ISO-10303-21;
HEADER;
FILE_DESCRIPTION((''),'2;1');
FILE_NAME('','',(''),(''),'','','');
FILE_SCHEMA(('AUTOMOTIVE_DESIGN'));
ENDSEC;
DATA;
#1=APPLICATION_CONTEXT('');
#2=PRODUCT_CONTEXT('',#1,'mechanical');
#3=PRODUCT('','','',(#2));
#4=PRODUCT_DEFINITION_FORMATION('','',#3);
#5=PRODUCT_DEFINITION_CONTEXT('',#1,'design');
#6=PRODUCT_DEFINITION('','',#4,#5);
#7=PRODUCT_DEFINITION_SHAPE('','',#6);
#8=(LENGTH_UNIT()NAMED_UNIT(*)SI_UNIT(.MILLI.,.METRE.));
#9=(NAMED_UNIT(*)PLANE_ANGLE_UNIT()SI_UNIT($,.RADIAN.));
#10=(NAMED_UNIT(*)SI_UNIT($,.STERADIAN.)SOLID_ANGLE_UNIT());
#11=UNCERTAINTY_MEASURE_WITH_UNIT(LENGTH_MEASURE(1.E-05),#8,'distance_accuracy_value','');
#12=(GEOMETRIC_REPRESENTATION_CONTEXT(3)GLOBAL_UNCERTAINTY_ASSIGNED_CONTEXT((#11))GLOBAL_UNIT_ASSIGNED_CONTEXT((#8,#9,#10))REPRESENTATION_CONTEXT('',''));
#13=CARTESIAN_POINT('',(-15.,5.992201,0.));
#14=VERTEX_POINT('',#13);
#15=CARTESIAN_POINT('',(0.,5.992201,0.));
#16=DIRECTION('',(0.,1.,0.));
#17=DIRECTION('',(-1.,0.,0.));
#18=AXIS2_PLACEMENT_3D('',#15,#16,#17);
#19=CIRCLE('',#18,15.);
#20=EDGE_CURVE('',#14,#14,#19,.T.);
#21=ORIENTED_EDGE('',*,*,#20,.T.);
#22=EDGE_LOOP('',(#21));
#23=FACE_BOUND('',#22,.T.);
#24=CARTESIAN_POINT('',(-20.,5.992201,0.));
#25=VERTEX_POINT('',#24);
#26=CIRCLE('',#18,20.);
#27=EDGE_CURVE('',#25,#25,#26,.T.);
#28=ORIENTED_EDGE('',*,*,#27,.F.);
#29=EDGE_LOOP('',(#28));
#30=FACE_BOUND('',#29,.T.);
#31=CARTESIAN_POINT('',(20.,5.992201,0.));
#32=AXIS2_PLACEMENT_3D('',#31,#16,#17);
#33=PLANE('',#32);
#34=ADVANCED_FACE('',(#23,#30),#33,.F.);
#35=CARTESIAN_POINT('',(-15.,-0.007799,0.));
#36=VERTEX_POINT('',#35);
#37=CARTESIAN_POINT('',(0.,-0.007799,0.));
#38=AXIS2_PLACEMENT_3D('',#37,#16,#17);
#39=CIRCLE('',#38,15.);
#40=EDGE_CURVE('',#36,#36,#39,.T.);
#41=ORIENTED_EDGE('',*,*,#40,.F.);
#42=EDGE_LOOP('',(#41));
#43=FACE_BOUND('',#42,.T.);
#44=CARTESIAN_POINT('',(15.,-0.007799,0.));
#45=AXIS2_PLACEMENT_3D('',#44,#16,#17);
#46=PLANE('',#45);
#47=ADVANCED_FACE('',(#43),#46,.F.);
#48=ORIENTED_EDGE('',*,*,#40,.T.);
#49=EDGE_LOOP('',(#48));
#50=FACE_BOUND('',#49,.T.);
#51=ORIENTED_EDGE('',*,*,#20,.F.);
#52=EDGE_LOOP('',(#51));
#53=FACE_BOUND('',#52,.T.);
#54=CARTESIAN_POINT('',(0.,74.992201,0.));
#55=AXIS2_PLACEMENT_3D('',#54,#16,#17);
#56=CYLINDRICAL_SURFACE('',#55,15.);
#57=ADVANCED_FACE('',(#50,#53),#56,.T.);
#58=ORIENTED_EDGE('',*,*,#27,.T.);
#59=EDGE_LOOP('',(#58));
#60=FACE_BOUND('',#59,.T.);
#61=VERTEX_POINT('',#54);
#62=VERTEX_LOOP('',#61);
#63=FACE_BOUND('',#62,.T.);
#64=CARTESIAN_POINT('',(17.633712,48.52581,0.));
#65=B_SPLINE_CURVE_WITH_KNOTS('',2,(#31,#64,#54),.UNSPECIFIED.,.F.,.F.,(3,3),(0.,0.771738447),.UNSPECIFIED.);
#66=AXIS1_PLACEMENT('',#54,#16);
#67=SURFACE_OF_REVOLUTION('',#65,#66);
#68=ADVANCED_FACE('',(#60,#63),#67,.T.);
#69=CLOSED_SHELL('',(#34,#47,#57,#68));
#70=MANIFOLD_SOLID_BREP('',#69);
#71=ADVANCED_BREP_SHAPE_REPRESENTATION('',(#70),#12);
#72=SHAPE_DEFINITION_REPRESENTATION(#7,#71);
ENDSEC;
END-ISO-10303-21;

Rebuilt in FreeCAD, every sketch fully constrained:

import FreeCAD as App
import Part
import Sketcher

doc = App.newDocument("Part")
body = doc.addObject("PartDesign::Body", "Body")

sketch1 = body.newObject("Sketcher::SketchObject", "Sketch")
sketch1.AttachmentSupport = (doc.getObject("XY_Plane"), [""])
sketch1.MapMode = "FlatFace"
sketch1.addGeometry(Part.LineSegment(App.Vector(0, 74.992201, 0), App.Vector(0, -0.007799, 0)), False)
sketch1.addGeometry(Part.LineSegment(App.Vector(0, -0.007799, 0), App.Vector(15, -0.007799, 0)), False)
sketch1.addGeometry(Part.LineSegment(App.Vector(15, -0.007799, 0), App.Vector(15, 5.992201, 0)), False)
sketch1.addGeometry(Part.LineSegment(App.Vector(15, 5.992201, 0), App.Vector(20, 5.992201, 0)), False)
sketch1.addGeometry(Part.BSplineCurve([App.Vector(0, 74.992201, 0), App.Vector(17.633712, 48.52581, 0), App.Vector(20, 5.992201, 0)], [3, 3], [0, 0.771738447], False, 2, [1, 1, 1], False), False)
sketch1.addConstraint(Sketcher.Constraint("Block", 4))
sketch1.addConstraint(Sketcher.Constraint("Coincident", 0, 2, 1, 1))
sketch1.addConstraint(Sketcher.Constraint("Coincident", 1, 2, 2, 1))
sketch1.addConstraint(Sketcher.Constraint("Coincident", 2, 2, 3, 1))
sketch1.addConstraint(Sketcher.Constraint("Coincident", 3, 2, 4, 2))
sketch1.addConstraint(Sketcher.Constraint("Coincident", 4, 1, 0, 1))
sketch1.addConstraint(Sketcher.Constraint("Vertical", 0))
sketch1.addConstraint(Sketcher.Constraint("Horizontal", 1))
sketch1.addConstraint(Sketcher.Constraint("Vertical", 2))
sketch1.addConstraint(Sketcher.Constraint("Horizontal", 3))
sketch1.addConstraint(Sketcher.Constraint("DistanceX", 1, 1, 1, 2, 15.0))
sketch1.addConstraint(Sketcher.Constraint("DistanceY", 0, 2, 0, 1, 75.0))
revolution = body.newObject("PartDesign::Revolution", "Revolution")
revolution.Profile = sketch1
revolution.ReferenceAxis = (sketch1, ["V_Axis"])
revolution.Angle = 360

doc.recompute()
